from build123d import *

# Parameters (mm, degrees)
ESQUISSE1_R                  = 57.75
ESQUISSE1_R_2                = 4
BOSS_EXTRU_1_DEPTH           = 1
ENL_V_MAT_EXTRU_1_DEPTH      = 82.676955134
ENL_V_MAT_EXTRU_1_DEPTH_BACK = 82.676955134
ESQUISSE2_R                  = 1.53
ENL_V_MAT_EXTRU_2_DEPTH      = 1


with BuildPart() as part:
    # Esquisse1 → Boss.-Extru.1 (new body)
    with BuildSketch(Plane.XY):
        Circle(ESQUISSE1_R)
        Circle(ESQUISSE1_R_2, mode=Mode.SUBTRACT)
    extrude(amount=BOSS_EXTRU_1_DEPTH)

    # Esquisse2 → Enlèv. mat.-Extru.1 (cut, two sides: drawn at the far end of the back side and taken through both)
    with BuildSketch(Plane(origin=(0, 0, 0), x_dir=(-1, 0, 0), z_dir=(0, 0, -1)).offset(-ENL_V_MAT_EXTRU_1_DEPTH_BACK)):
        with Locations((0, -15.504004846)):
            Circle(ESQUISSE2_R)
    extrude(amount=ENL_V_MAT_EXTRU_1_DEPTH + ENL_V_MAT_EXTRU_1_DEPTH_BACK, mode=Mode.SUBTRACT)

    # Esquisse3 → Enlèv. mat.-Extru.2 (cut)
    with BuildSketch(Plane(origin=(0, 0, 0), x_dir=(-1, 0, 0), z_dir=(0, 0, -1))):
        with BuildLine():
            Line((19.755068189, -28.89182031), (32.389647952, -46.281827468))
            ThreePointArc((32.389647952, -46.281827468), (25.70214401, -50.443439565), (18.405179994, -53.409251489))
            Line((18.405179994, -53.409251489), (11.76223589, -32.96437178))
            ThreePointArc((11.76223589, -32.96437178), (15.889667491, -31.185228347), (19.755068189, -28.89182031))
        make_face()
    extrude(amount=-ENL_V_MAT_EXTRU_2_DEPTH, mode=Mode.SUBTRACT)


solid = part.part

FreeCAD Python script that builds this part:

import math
import FreeCAD as App
import Part
import Sketcher
from FreeCAD import Vector
Q = App.Units.Quantity

doc = App.newDocument("Part")
body = doc.addObject("PartDesign::Body", "Body")

# Sketch on XY plane
sketch1 = body.newObject("Sketcher::SketchObject", "Sketch")
sketch1.AttachmentSupport = (doc.getObject("XY_Plane"), [""])
sketch1.MapMode = "FlatFace"
sketch1.addGeometry(Part.Circle(Vector(0, 0, 0), Vector(0, 0, 1), 57.8), False)
sketch1.addGeometry(Part.Circle(Vector(0, 0, 0), Vector(0, 0, 1), 4), False)
sketch1.addConstraint(Sketcher.Constraint("Coincident", 0, 3, -1, 1))
sketch1.addConstraint(Sketcher.Constraint("Coincident", 1, 3, -1, 1))
sketch1.addConstraint(Sketcher.Constraint("Diameter", 1, 8.0))
sketch1.addConstraint(Sketcher.Constraint("Diameter", 0, 115.5))
pad1 = body.newObject("PartDesign::Pad", "Pad")
pad1.Profile = sketch1
pad1.Length = 1

# Sketch on XY plane
sketch2 = body.newObject("Sketcher::SketchObject", "Sketch001")
sketch2.AttachmentSupport = (doc.getObject("XY_Plane"), [""])
sketch2.MapMode = "FlatFace"
sketch2.addGeometry(Part.Circle(Vector(0, -15.5, 0), Vector(0, 0, 1), 1.5), False)
sketch2.addConstraint(Sketcher.Constraint("PointOnObject", 0, 3, -2))
sketch2.addConstraint(Sketcher.Constraint("Diameter", 0, 3.06))
sketch2.addConstraint(Sketcher.Constraint("DistanceY", 0, 3, -1, 1, 15.504005))
pocket1 = body.newObject("PartDesign::Pocket", "Pocket")
pocket1.Profile = sketch2
pocket1.Type = "ThroughAll"
pocket1.Midplane = True

# Sketch on XY plane
sketch3 = body.newObject("Sketcher::SketchObject", "Sketch002")
sketch3.AttachmentSupport = (doc.getObject("XY_Plane"), [""])
sketch3.MapMode = "FlatFace"
sketch3.addGeometry(Part.LineSegment(Vector(-32, -46, 0), Vector(-20, -29, 0)), False)
sketch3.addGeometry(Part.ArcOfCircle(Part.Circle(Vector(0, 0, 0), Vector(0, 0, 1), 35), math.radians(-124.36), math.radians(-109.64)), False)
sketch3.addGeometry(Part.LineSegment(Vector(-12, -33, 0), Vector(-18, -53, 0)), False)
sketch3.addGeometry(Part.ArcOfCircle(Part.Circle(Vector(-5, -9, 0), Vector(0, 0, 1), 46), math.radians(-126.78), math.radians(-107.23)), False)
sketch3.addConstraint(Sketcher.Constraint("Coincident", 0, 2, 1, 1))
sketch3.addConstraint(Sketcher.Constraint("Coincident", 1, 2, 2, 1))
sketch3.addConstraint(Sketcher.Constraint("Coincident", 2, 2, 3, 2))
sketch3.addConstraint(Sketcher.Constraint("Coincident", 3, 1, 0, 1))
sketch3.addConstraint(Sketcher.Constraint("Coincident", 1, 3, -1, 1))
sketch3.addConstraint(Sketcher.Constraint("Radius", 1, 35.0))
sketch3.addConstraint(Sketcher.Constraint("Angle", 0, Q("54 deg")))
sketch3.addConstraint(Sketcher.Constraint("Angle", 2, Q("-108 deg")))
sketch3.addConstraint(Sketcher.Constraint("Radius", 3, 46.225459))
sketch3.addConstraint(Sketcher.Constraint("Distance", 0, 21.495231))
sketch3.addConstraint(Sketcher.Constraint("Distance", 2, 21.497019))
sketch3.addConstraint(Sketcher.Constraint("DistanceX", 3, 3, -1, 1, 4.711591))
sketch3.addConstraint(Sketcher.Constraint("DistanceX", 0, 2, -1, 1, 19.755068))
pocket2 = body.newObject("PartDesign::Pocket", "Pocket001")
pocket2.Profile = sketch3
pocket2.Length = 1
pocket2.Reversed = True

doc.recompute()
